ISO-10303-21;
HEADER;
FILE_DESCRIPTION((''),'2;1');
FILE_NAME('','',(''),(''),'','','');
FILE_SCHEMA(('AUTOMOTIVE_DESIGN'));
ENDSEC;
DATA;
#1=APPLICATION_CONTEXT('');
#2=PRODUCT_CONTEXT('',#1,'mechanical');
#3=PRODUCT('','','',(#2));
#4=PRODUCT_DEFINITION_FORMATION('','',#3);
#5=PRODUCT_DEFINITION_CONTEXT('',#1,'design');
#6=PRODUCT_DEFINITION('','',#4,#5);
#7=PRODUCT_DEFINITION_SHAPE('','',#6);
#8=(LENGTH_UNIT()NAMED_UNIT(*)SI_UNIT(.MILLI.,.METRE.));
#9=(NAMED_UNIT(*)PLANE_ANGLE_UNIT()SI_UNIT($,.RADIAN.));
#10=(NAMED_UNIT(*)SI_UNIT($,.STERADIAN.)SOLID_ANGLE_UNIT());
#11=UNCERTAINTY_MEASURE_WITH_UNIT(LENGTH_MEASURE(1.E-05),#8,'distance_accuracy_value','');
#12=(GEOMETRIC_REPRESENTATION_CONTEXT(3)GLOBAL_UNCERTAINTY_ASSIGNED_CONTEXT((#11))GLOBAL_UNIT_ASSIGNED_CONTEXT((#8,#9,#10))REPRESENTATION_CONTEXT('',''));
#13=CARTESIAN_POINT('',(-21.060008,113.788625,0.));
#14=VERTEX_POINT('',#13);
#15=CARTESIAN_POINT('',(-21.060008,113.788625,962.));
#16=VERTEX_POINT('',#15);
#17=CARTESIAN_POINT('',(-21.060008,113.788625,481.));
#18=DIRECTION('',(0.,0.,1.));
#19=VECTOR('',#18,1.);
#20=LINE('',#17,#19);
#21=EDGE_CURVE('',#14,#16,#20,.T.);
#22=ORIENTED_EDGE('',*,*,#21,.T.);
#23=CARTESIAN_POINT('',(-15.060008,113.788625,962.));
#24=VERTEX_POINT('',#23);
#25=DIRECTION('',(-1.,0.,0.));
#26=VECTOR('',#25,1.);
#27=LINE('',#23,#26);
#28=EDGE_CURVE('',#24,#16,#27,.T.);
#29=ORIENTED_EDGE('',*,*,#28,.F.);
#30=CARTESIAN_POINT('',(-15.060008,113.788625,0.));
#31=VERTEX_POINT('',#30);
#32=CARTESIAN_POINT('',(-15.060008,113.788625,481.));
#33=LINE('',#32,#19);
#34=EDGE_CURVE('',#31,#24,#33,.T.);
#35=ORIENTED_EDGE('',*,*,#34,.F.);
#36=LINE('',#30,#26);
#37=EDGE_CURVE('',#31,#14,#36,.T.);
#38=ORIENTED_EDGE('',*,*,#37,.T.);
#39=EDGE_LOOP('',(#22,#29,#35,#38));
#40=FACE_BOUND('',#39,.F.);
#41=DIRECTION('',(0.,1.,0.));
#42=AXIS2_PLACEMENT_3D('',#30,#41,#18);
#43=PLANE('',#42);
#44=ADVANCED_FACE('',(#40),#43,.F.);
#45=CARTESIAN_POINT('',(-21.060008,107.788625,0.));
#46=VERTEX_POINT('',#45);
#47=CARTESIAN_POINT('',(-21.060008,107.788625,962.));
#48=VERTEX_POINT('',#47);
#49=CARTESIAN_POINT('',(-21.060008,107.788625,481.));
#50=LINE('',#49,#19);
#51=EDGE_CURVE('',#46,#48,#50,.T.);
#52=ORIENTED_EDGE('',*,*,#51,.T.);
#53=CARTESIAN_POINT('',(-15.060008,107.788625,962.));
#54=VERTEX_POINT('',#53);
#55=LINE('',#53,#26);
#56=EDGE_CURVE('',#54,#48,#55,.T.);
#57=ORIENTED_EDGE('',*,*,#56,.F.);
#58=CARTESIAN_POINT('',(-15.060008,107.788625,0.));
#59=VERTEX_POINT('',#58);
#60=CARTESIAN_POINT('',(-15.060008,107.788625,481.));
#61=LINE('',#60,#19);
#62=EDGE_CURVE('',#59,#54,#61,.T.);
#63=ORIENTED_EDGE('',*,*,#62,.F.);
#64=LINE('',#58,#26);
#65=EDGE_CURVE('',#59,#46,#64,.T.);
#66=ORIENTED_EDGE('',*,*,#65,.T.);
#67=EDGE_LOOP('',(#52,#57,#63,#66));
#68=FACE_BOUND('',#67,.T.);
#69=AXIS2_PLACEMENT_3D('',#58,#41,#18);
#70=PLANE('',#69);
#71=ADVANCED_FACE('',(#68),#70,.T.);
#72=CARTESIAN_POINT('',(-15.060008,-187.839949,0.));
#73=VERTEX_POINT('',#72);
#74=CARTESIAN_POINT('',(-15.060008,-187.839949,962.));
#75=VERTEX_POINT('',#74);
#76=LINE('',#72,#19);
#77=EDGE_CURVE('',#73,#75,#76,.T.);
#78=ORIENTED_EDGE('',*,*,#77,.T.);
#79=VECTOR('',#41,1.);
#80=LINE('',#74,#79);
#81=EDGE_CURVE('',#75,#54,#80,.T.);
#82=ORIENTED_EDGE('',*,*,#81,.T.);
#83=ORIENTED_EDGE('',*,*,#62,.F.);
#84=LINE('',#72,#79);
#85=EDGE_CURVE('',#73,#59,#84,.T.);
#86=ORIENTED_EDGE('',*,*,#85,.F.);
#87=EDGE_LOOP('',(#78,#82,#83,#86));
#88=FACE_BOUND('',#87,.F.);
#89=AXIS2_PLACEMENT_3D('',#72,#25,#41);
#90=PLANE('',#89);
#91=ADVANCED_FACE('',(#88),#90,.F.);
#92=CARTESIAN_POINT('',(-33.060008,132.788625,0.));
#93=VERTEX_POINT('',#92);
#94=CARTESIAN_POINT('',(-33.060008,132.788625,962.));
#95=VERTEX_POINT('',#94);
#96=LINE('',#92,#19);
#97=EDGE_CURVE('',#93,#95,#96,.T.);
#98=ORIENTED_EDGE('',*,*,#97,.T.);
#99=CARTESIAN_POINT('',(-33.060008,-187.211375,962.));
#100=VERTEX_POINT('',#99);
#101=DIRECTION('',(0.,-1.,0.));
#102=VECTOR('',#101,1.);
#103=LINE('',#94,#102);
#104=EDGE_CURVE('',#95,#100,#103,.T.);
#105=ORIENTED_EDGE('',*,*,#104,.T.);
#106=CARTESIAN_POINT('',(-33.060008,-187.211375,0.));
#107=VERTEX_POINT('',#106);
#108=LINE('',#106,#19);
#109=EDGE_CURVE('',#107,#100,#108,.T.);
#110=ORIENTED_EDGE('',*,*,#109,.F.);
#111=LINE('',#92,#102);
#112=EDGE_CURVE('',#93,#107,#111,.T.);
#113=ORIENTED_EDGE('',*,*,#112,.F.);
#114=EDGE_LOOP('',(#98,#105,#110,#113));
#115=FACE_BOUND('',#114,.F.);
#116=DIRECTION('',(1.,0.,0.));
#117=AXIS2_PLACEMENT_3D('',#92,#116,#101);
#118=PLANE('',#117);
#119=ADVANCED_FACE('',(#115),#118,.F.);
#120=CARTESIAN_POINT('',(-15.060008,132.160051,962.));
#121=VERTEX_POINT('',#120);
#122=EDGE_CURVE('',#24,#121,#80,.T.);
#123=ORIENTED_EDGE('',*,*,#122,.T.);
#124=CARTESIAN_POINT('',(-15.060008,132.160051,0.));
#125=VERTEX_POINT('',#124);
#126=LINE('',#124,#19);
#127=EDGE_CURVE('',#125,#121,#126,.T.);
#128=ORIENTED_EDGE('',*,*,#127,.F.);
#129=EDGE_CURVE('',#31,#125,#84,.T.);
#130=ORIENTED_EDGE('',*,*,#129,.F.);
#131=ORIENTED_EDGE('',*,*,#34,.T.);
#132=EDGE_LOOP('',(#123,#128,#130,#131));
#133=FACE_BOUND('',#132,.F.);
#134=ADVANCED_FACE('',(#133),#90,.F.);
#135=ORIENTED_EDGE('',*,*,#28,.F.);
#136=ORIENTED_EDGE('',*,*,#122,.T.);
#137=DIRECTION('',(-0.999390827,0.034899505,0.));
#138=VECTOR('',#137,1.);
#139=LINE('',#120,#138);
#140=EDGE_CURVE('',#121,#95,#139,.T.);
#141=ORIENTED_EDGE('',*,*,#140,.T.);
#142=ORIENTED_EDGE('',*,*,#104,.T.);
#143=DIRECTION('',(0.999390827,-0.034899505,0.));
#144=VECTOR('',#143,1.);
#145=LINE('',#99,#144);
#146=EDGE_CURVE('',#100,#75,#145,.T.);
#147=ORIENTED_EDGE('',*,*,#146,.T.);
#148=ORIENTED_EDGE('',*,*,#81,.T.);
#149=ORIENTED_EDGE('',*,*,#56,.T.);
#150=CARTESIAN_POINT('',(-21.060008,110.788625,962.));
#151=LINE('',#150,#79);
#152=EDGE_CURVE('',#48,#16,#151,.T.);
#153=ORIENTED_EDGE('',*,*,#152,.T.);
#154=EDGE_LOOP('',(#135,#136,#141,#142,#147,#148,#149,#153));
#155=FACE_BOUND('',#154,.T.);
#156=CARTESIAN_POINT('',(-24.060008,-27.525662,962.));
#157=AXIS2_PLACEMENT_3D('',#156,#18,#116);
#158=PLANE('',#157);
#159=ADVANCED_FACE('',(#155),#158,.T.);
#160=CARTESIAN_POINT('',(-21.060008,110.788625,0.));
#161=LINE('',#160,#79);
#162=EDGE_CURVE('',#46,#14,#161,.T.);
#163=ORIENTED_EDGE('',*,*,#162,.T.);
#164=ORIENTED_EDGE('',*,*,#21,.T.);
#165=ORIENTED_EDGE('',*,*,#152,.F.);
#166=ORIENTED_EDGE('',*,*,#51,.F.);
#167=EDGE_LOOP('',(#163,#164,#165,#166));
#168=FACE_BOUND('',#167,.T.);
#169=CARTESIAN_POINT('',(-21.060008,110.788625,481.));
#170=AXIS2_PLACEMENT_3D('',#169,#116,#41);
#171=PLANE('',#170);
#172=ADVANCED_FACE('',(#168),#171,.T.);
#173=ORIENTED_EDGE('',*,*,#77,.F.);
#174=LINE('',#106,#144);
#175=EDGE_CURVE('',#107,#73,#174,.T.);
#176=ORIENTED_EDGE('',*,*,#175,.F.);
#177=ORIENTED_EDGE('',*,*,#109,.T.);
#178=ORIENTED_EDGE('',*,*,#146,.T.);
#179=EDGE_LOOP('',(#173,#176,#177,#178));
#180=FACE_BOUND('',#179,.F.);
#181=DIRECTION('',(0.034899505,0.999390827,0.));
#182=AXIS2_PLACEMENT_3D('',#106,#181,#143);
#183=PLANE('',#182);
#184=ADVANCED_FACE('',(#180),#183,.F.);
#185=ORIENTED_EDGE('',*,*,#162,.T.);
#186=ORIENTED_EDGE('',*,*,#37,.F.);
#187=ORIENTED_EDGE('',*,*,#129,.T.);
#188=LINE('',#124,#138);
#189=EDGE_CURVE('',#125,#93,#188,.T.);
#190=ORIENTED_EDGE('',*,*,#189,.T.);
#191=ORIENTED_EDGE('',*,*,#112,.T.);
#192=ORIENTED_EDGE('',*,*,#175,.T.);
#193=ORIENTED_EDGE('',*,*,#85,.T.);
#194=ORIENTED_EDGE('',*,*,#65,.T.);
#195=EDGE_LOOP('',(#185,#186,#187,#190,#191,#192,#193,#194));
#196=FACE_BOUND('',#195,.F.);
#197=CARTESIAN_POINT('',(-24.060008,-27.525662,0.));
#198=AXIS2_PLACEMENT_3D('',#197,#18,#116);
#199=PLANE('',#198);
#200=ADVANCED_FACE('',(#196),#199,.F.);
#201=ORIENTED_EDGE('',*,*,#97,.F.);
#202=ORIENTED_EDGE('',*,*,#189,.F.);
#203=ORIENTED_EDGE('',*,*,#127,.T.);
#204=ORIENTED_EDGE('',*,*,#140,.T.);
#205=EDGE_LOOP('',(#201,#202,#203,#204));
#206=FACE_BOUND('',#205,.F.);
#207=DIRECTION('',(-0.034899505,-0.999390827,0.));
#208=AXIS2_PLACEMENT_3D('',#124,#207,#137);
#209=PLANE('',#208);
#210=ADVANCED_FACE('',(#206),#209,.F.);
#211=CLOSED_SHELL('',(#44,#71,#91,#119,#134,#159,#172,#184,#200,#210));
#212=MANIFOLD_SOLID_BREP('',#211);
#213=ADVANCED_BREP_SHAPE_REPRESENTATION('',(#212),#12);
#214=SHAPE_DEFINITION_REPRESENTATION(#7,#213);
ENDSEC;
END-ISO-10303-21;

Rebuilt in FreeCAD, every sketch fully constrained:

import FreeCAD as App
import Part
import Sketcher
Q = App.Units.Quantity

doc = App.newDocument("Part")
params = doc.addObject("Spreadsheet::Sheet", "Params")
for row, (alias, value) in enumerate([
    ("sketch1_height", "320 mm"),
    ("pad1_length", "962 mm"),
    ("sketch2_width", "6 mm"),
    ("sketch2_height", "962 mm"),
    ("pocket1_length", "6 mm"),
], start=1):
    params.set(f"A{row}", alias)
    params.set(f"B{row}", "=" + value)
    params.setAlias(f"B{row}", alias)

body = doc.addObject("PartDesign::Body", "Body")

# Sketch on XY plane
sketch1 = doc.addObject("Sketcher::SketchObject", "Sketch")
body.addObject(sketch1)
sketch1.AttachmentSupport = (doc.XY_Plane, [""])
sketch1.MapMode = "FlatFace"
sketch1.addGeometry(Part.LineSegment(App.Vector(-15, -188, 0), App.Vector(-15, 132, 0)), False)
sketch1.addGeometry(Part.LineSegment(App.Vector(-15, 132, 0), App.Vector(-33, 133, 0)), False)
sketch1.addGeometry(Part.LineSegment(App.Vector(-33, 133, 0), App.Vector(-33, -187, 0)), False)
sketch1.addGeometry(Part.LineSegment(App.Vector(-33, -187, 0), App.Vector(-15, -188, 0)), False)
sketch1.addConstraint(Sketcher.Constraint("Coincident", 0, 2, 1, 1))
sketch1.addConstraint(Sketcher.Constraint("Coincident", 1, 2, 2, 1))
sketch1.addConstraint(Sketcher.Constraint("Coincident", 2, 2, 3, 1))
sketch1.addConstraint(Sketcher.Constraint("Coincident", 3, 2, 0, 1))
sketch1.addConstraint(Sketcher.Constraint("Vertical", 0))
sketch1.addConstraint(Sketcher.Constraint("Vertical", 2))
sketch1.addConstraint(Sketcher.Constraint("Parallel", 1, 3))
sketch1.addConstraint(Sketcher.Constraint("DistanceY", 0, 1, 0, 2, 320.0))
sketch1.addConstraint(Sketcher.Constraint("Angle", 1, Q("178 deg")))
sketch1.addConstraint(Sketcher.Constraint("DistanceX", 1, 2, 0, 2, 18.0))
sketch1.addConstraint(Sketcher.Constraint("DistanceY", -1, 1, 0, 2, 132.160051))
sketch1.addConstraint(Sketcher.Constraint("DistanceX", 1, 2, -1, 1, 33.060008))
sketch1.setExpression("Constraints[7]", "Params.sketch1_height")
pad1 = doc.addObject("PartDesign::Pad", "Pad")
body.addObject(pad1)
pad1.Profile = sketch1
pad1.setExpression("Length", "Params.pad1_length")

# Sketch on YZ plane
sketch2 = doc.addObject("Sketcher::SketchObject", "Sketch001")
body.addObject(sketch2)
sketch2.AttachmentSupport = (doc.YZ_Plane, [""])
sketch2.MapMode = "FlatFace"
sketch2.AttachmentOffset = App.Placement(App.Vector(0, 0, -15.060008), App.Rotation())
sketch2.addGeometry(Part.LineSegment(App.Vector(108, 962, 0), App.Vector(108, 0, 0)), False)
sketch2.addGeometry(Part.LineSegment(App.Vector(108, 0, 0), App.Vector(114, 0, 0)), False)
sketch2.addGeometry(Part.LineSegment(App.Vector(114, 0, 0), App.Vector(114, 962, 0)), False)
sketch2.addGeometry(Part.LineSegment(App.Vector(114, 962, 0), App.Vector(108, 962, 0)), False)
sketch2.addConstraint(Sketcher.Constraint("Coincident", 0, 2, 1, 1))
sketch2.addConstraint(Sketcher.Constraint("Coincident", 1, 2, 2, 1))
sketch2.addConstraint(Sketcher.Constraint("Coincident", 2, 2, 3, 1))
sketch2.addConstraint(Sketcher.Constraint("Coincident", 3, 2, 0, 1))
sketch2.addConstraint(Sketcher.Constraint("Vertical", 0))
sketch2.addConstraint(Sketcher.Constraint("Horizontal", 1))
sketch2.addConstraint(Sketcher.Constraint("Vertical", 2))
sketch2.addConstraint(Sketcher.Constraint("Horizontal", 3))
sketch2.addConstraint(Sketcher.Constraint("PointOnObject", 0, 2, -1))
sketch2.addConstraint(Sketcher.Constraint("DistanceX", 1, 1, 1, 2, 6.0))
sketch2.addConstraint(Sketcher.Constraint("DistanceY", 0, 2, 0, 1, 962.0))
sketch2.addConstraint(Sketcher.Constraint("DistanceX", -1, 1, 0, 2, 107.788625))
sketch2.setExpression("Constraints[9]", "Params.sketch2_width")
sketch2.setExpression("Constraints[10]", "Params.sketch2_height")
pocket1 = doc.addObject("PartDesign::Pocket", "Pocket")
body.addObject(pocket1)
pocket1.Profile = sketch2
pocket1.setExpression("Length", "Params.pocket1_length")

doc.recompute()
